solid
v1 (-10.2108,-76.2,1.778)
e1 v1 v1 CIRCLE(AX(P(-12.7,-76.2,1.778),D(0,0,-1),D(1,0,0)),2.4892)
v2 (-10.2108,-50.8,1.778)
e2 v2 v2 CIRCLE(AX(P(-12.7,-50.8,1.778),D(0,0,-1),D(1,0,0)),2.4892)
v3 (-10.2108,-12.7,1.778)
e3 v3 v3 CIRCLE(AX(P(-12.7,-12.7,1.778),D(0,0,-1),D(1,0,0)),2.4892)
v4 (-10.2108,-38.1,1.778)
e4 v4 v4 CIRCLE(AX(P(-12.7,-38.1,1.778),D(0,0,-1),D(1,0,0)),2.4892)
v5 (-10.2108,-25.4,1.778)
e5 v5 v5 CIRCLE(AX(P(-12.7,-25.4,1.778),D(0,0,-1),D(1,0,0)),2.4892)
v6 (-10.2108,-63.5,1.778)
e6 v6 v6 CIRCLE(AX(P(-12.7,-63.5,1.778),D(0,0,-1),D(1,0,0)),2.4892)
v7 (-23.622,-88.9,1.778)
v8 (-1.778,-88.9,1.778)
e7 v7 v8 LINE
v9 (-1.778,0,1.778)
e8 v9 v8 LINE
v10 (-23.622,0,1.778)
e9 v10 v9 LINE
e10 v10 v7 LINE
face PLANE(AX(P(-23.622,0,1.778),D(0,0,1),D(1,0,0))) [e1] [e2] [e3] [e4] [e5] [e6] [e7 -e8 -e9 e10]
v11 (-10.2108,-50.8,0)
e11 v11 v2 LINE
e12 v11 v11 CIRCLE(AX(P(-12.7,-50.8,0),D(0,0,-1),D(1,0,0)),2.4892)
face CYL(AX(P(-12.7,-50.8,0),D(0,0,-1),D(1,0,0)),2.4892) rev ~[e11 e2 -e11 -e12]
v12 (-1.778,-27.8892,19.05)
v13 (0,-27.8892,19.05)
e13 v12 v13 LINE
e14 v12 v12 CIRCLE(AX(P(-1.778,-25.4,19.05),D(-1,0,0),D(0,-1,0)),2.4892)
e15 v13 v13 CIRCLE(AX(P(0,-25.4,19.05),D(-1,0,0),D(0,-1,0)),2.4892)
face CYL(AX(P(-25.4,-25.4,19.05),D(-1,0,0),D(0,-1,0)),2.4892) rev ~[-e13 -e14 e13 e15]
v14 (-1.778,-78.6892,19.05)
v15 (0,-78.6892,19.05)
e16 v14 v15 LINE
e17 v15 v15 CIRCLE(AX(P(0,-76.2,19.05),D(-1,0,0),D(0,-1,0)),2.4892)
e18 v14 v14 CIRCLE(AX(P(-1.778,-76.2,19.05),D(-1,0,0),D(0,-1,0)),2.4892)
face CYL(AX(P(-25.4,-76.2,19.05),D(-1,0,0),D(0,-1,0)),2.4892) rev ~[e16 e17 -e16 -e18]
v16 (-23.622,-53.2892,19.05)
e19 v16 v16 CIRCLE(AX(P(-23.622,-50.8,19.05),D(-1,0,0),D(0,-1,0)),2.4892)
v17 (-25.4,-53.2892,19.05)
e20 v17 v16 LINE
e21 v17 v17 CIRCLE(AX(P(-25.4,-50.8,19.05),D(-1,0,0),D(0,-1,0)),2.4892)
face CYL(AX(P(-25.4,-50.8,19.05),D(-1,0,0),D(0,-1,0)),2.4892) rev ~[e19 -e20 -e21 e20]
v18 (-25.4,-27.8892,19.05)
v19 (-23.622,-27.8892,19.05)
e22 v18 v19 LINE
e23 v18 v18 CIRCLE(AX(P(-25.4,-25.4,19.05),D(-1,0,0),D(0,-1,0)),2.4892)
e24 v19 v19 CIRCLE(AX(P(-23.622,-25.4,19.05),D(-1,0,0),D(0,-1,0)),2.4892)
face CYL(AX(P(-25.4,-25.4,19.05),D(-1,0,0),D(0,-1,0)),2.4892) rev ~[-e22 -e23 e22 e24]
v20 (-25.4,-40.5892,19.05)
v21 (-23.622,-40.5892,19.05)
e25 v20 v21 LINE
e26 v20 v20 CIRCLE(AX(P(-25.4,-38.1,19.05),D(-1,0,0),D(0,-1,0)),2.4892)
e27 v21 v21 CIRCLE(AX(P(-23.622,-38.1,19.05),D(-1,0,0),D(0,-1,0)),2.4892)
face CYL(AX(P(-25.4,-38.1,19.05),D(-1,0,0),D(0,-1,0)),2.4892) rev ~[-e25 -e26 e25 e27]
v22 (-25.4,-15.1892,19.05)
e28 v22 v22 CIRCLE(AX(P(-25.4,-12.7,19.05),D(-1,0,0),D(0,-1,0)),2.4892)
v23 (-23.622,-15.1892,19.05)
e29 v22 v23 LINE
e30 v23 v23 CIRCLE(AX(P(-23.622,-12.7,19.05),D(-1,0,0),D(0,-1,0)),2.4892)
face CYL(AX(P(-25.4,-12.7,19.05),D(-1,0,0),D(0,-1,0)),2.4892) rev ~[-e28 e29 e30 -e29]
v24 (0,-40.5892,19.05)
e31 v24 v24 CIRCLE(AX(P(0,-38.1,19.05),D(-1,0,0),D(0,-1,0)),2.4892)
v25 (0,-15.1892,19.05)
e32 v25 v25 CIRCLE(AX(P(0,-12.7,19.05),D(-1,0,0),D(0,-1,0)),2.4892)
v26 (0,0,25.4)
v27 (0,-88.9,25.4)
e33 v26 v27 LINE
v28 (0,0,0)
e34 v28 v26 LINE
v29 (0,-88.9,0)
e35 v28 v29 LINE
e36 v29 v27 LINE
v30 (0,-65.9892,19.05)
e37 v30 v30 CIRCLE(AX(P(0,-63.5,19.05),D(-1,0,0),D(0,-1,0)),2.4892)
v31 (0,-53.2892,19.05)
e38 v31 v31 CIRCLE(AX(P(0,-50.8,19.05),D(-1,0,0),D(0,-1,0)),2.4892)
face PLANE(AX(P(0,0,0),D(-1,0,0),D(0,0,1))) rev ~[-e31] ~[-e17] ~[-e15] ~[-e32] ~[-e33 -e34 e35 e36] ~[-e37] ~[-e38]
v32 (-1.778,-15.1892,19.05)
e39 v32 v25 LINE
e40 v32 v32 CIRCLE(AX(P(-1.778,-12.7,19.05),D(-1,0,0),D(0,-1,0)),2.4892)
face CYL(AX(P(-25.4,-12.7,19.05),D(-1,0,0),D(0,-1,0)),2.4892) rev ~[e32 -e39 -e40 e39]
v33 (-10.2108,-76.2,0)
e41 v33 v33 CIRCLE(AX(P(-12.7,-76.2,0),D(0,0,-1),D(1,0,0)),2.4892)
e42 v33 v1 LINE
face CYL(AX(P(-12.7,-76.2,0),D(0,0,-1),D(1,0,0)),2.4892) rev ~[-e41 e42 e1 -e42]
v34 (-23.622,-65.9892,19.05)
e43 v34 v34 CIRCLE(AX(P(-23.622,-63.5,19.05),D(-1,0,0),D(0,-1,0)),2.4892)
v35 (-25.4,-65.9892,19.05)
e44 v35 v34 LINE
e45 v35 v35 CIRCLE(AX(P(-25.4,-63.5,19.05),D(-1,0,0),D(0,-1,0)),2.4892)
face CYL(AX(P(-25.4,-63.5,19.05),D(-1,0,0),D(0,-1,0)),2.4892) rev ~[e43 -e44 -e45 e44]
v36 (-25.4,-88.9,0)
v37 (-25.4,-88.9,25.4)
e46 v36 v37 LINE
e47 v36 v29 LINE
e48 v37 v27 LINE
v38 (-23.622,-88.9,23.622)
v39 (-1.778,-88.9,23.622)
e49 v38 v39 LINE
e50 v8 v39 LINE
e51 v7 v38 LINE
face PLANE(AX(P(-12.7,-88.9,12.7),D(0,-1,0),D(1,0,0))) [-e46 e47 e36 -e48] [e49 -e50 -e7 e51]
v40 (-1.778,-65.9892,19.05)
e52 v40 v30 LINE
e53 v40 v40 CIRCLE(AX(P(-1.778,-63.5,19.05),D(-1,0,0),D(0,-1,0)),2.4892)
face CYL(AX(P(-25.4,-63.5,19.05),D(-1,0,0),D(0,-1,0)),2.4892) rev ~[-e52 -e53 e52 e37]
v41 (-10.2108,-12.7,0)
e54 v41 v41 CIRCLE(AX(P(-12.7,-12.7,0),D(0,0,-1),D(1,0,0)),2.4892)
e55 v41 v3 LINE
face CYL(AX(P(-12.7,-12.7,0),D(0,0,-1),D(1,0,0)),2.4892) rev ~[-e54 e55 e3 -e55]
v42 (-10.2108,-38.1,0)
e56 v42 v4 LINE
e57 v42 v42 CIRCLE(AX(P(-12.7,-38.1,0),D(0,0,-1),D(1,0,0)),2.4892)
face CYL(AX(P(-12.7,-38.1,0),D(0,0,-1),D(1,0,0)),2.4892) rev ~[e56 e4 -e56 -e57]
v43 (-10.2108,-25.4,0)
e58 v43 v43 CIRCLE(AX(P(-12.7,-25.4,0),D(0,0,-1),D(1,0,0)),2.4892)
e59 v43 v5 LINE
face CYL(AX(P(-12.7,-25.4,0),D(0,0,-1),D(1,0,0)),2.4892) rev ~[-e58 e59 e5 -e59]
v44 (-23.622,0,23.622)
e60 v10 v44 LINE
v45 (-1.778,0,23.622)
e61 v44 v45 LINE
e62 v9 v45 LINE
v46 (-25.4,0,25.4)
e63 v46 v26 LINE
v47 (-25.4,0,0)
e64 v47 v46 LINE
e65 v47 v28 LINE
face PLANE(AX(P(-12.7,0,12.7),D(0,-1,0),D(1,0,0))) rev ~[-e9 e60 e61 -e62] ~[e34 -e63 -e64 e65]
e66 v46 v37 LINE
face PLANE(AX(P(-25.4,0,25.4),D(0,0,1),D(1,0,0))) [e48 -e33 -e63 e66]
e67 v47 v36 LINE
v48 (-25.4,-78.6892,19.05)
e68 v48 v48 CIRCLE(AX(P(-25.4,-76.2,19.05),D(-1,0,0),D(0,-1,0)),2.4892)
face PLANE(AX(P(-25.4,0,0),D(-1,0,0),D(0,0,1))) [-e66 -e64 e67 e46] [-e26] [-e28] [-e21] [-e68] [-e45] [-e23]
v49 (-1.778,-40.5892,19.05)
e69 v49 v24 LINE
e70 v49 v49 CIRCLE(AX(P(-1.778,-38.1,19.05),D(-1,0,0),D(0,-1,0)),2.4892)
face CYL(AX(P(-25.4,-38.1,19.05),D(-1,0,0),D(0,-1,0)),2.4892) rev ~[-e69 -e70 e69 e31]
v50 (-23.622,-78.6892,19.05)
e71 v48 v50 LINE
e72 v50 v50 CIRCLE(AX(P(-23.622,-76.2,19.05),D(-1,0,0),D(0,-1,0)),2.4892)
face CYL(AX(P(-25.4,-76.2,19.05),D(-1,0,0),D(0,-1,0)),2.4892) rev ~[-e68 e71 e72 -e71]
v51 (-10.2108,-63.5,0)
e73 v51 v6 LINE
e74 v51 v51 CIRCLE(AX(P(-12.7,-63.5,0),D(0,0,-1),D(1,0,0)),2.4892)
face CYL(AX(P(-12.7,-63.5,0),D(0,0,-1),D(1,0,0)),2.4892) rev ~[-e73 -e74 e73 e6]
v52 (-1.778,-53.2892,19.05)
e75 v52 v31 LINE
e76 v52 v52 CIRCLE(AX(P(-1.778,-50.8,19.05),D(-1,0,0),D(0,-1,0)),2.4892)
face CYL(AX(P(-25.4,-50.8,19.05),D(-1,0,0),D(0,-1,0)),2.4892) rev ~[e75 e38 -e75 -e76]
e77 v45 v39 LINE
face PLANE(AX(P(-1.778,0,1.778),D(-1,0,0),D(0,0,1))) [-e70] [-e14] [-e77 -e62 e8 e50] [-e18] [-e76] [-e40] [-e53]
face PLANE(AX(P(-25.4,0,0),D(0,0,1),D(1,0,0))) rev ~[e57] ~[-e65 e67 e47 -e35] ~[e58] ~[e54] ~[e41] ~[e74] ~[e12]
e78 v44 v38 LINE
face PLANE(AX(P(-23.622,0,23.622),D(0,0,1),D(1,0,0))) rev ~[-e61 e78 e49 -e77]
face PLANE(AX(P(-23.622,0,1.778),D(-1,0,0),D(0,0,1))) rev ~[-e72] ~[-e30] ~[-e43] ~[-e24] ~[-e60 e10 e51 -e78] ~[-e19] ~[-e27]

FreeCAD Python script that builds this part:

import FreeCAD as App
import Part
import Sketcher
from FreeCAD import Vector
Q = App.Units.Quantity


def add_polygon(sketch, points):
    """Adds a closed chain of lines whose ends are joined by coincident constraints."""
    first, n = sketch.GeometryCount, len(points)
    for a, b in zip(points, points[1:] + points[:1]):
        sketch.addGeometry(Part.LineSegment(App.Vector(*a, 0), App.Vector(*b, 0)), False)
    for i in range(n):
        sketch.addConstraint(Sketcher.Constraint("Coincident", first + i, 2, first + (i + 1) % n, 1))

doc = App.newDocument("Part")
body = doc.addObject("PartDesign::Body", "Body")

# Sketch on XZ plane
sketch1 = doc.addObject("Sketcher::SketchObject", "Sketch")
body.addObject(sketch1)
sketch1.AttachmentSupport = (doc.XZ_Plane, [""])
sketch1.MapMode = "FlatFace"
add_polygon(sketch1, [(-25, 25), (-25, 0), (0, 0), (0, 25)])  # lines 0-3
add_polygon(sketch1, [(-2, 2), (-24, 2), (-24, 24), (-2, 24)])  # lines 4-7
sketch1.addConstraint([
    Sketcher.Constraint("Vertical", 0),
    Sketcher.Constraint("Horizontal", 1),
    Sketcher.Constraint("Vertical", 2),
    Sketcher.Constraint("Horizontal", 3),
    Sketcher.Constraint("Horizontal", 4),
    Sketcher.Constraint("Vertical", 5),
    Sketcher.Constraint("Horizontal", 6),
    Sketcher.Constraint("Vertical", 7),
    Sketcher.Constraint("Coincident", 1, 2, -1, 1),
    Sketcher.Constraint("Equal", 3, 0),
    Sketcher.Constraint("Equal", 6, 5),
    Sketcher.Constraint("DistanceX", 1, 1, 1, 2, Q("1 in")),
    Sketcher.Constraint("DistanceX", 4, 2, 4, 1, Q("0.86 in")),
    Sketcher.Constraint("DistanceX", 4, 2, -1, 1, Q("0.93 in")),
    Sketcher.Constraint("DistanceY", -1, 1, 4, 2, Q("0.07 in")),
])
pad1 = doc.addObject("PartDesign::Pad", "Pad")
body.addObject(pad1)
pad1.Profile = sketch1
pad1.Length = Q("3.5 in")

# Sketch on YZ plane
sketch2 = doc.addObject("Sketcher::SketchObject", "Sketch001")
body.addObject(sketch2)
sketch2.AttachmentSupport = (doc.YZ_Plane, [""])
sketch2.MapMode = "FlatFace"
sketch2.AttachmentOffset = App.Placement(Vector(0, 0, -1 * 25.4), App.Rotation())
sketch2.addGeometry([
    Part.Circle(Vector(-12.7, 19.1, 0), Vector(0, 0, 1), 2.5),  # 0
    Part.Circle(Vector(-25.4, 19.1, 0), Vector(0, 0, 1), 2.5),  # 1
    Part.Circle(Vector(-38.1, 19.1, 0), Vector(0, 0, 1), 2.5),  # 2
    Part.Circle(Vector(-50.8, 19.1, 0), Vector(0, 0, 1), 2.5),  # 3
    Part.Circle(Vector(-63.5, 19.1, 0), Vector(0, 0, 1), 2.5),  # 4
    Part.Circle(Vector(-76.2, 19.1, 0), Vector(0, 0, 1), 2.5),  # 5
], False)
sketch2.addConstraint([
    Sketcher.Constraint("Equal", 0, 1),
    Sketcher.Constraint("Equal", 1, 2),
    Sketcher.Constraint("Equal", 2, 3),
    Sketcher.Constraint("Equal", 3, 4),
    Sketcher.Constraint("Equal", 4, 5),
    Sketcher.Constraint("Horizontal", 0, 3, 1, 3),
    Sketcher.Constraint("Horizontal", 1, 3, 2, 3),
    Sketcher.Constraint("Horizontal", 2, 3, 3, 3),
    Sketcher.Constraint("Horizontal", 3, 3, 4, 3),
    Sketcher.Constraint("Horizontal", 4, 3, 5, 3),
    Sketcher.Constraint("Diameter", 0, Q("0.196 in")),
    Sketcher.Constraint("DistanceX", 1, 3, -1, 1, Q("1 in")),
    Sketcher.Constraint("DistanceX", 3, 3, -1, 1, Q("2 in")),
    Sketcher.Constraint("DistanceX", 5, 3, -1, 1, Q("3 in")),
    Sketcher.Constraint("DistanceX", 2, 3, 0, 3, Q("1 in")),
    Sketcher.Constraint("DistanceX", 4, 3, 2, 3, Q("1 in")),
    Sketcher.Constraint("DistanceX", 0, 3, -1, 1, Q("0.5 in")),
    Sketcher.Constraint("DistanceY", -1, 1, 0, 3, Q("0.75 in")),
])
pocket1 = doc.addObject("PartDesign::Pocket", "Pocket")
body.addObject(pocket1)
pocket1.Profile = sketch2
pocket1.Length = Q("1 in")
pocket1.Reversed = True

# Sketch on XY plane
sketch3 = doc.addObject("Sketcher::SketchObject", "Sketch002")
body.addObject(sketch3)
sketch3.AttachmentSupport = (doc.XY_Plane, [""])
sketch3.MapMode = "FlatFace"
sketch3.addGeometry([
    Part.Circle(Vector(-12.7, -76.2, 0), Vector(0, 0, 1), 2.5),  # 0
    Part.Circle(Vector(-12.7, -63.5, 0), Vector(0, 0, 1), 2.5),  # 1
    Part.Circle(Vector(-12.7, -50.8, 0), Vector(0, 0, 1), 2.5),  # 2
    Part.Circle(Vector(-12.7, -38.1, 0), Vector(0, 0, 1), 2.5),  # 3
    Part.Circle(Vector(-12.7, -25.4, 0), Vector(0, 0, 1), 2.5),  # 4
    Part.Circle(Vector(-12.7, -12.7, 0), Vector(0, 0, 1), 2.5),  # 5
], False)
sketch3.addConstraint([
    Sketcher.Constraint("Equal", 0, 1),
    Sketcher.Constraint("Equal", 1, 2),
    Sketcher.Constraint("Equal", 2, 3),
    Sketcher.Constraint("Equal", 3, 4),
    Sketcher.Constraint("Equal", 4, 5),
    Sketcher.Constraint("Vertical", 0, 3, 1, 3),
    Sketcher.Constraint("Vertical", 1, 3, 2, 3),
    Sketcher.Constraint("Vertical", 2, 3, 3, 3),
    Sketcher.Constraint("Vertical", 3, 3, 4, 3),
    Sketcher.Constraint("Vertical", 4, 3, 5, 3),
    Sketcher.Constraint("Diameter", 0, Q("0.196 in")),
    Sketcher.Constraint("DistanceY", 0, 3, -1, 1, Q("3 in")),
    Sketcher.Constraint("DistanceY", 2, 3, -1, 1, Q("2 in")),
    Sketcher.Constraint("DistanceY", 4, 3, -1, 1, Q("1 in")),
    Sketcher.Constraint("DistanceY", 1, 3, 3, 3, Q("1 in")),
    Sketcher.Constraint("DistanceY", 3, 3, 5, 3, Q("1 in")),
    Sketcher.Constraint("DistanceX", 0, 3, -1, 1, Q("0.5 in")),
    Sketcher.Constraint("DistanceY", 1, 3, -1, 1, Q("2.5 in")),
])
pocket2 = doc.addObject("PartDesign::Pocket", "Pocket001")
body.addObject(pocket2)
pocket2.Profile = sketch3
pocket2.Length = Q("0.07 in")
pocket2.Reversed = True

doc.recompute()
